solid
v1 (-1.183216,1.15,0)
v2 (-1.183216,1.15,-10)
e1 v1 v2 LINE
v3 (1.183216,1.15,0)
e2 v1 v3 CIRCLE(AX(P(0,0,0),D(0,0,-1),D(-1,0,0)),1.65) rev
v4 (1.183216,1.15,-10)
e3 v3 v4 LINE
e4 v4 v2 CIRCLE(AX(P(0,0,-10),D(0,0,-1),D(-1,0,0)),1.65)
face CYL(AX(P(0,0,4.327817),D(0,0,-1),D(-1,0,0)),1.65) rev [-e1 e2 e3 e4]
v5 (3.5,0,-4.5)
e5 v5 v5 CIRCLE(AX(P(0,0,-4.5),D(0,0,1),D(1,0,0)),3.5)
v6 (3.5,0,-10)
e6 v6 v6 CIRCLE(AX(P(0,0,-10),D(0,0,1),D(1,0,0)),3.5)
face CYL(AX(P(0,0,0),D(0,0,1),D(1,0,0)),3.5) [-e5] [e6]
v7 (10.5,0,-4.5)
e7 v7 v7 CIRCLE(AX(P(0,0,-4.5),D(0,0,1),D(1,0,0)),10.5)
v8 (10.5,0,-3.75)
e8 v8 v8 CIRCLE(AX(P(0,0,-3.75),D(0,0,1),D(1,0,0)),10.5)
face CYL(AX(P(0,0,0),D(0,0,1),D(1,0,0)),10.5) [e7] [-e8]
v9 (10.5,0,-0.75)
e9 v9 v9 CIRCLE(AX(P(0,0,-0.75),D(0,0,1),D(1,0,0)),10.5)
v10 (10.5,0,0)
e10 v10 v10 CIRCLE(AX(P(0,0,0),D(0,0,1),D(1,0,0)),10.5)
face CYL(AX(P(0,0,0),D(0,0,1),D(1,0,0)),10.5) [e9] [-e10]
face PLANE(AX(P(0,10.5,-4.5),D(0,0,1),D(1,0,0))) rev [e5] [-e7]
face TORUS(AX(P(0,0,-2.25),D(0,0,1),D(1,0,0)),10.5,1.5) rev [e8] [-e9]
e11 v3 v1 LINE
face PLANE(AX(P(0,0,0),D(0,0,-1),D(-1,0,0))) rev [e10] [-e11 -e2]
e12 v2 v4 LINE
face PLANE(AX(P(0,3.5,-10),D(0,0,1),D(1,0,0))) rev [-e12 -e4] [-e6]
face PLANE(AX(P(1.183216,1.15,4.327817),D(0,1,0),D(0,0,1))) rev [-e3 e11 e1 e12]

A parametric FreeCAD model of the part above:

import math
import FreeCAD as App
import Part
import Sketcher

doc = App.newDocument("Part")
params = doc.addObject("Spreadsheet::Sheet", "Params")
for row, (alias, value) in enumerate([
    ("sketch1_radius", "1.5 mm"),
    ("sketch1_width", "7 mm"),
    ("sketch1_height", "10 mm"),
    ("sketch1_width2", "10.5 mm"),
    ("sketch1_height2", "5.5 mm"),
    ("revolution_angle", "360 deg"),
    ("sketch2_radius", "1.6 mm"),
    ("sketch3_radius", "1.65 mm"),
    ("pocket2_length", "10 mm"),
], start=1):
    params.set(f"A{row}", alias)
    params.set(f"B{row}", "=" + value)
    params.setAlias(f"B{row}", alias)

body = doc.addObject("PartDesign::Body", "Body")

sketch1 = body.newObject("Sketcher::SketchObject", "Sketch")
sketch1.AttachmentSupport = (doc.getObject("YZ_Plane"), [""])
sketch1.MapMode = "FlatFace"
sketch1.addGeometry([
    Part.LineSegment(App.Vector(10.5, 0, 0), App.Vector(0, 0, 0)),
    Part.LineSegment(App.Vector(0, 0, 0), App.Vector(0, -10, 0)),
    Part.LineSegment(App.Vector(0, -10, 0), App.Vector(3.5, -10, 0)),
    Part.LineSegment(App.Vector(3.5, -10, 0), App.Vector(3.5, -4.5, 0)),
    Part.LineSegment(App.Vector(3.5, -4.5, 0), App.Vector(10.5, -4.5, 0)),
    Part.LineSegment(App.Vector(10.5, -4.5, 0), App.Vector(10.5, -3.8, 0)),
    Part.ArcOfCircle(Part.Circle(App.Vector(10.5, -2.2, 0), App.Vector(0, 0, 1), 1.5), math.radians(90), math.radians(270)),
    Part.LineSegment(App.Vector(10.5, -0.8, 0), App.Vector(10.5, 0, 0)),
], False)
sketch1.addConstraint([
    Sketcher.Constraint("Coincident", 0, 2, 1, 1),
    Sketcher.Constraint("Coincident", 1, 2, 2, 1),
    Sketcher.Constraint("Coincident", 2, 2, 3, 1),
    Sketcher.Constraint("Coincident", 3, 2, 4, 1),
    Sketcher.Constraint("Coincident", 4, 2, 5, 1),
    Sketcher.Constraint("Coincident", 5, 2, 6, 2),
    Sketcher.Constraint("Coincident", 6, 1, 7, 1),
    Sketcher.Constraint("Coincident", 7, 2, 0, 1),
    Sketcher.Constraint("Horizontal", 0),
    Sketcher.Constraint("Vertical", 1),
    Sketcher.Constraint("Horizontal", 2),
    Sketcher.Constraint("Vertical", 3),
    Sketcher.Constraint("Horizontal", 4),
    Sketcher.Constraint("Vertical", 5),
    Sketcher.Constraint("Vertical", 7),
    Sketcher.Constraint("Coincident", 0, 2, -1, 1),
    Sketcher.Constraint("Vertical", 6, 3, 4, 2),
    Sketcher.Constraint("Vertical", 5, 2, 6, 1),
    Sketcher.Constraint("Equal", 5, 7),
    Sketcher.Constraint("Radius", 6, 1.5),
    Sketcher.Constraint("DistanceX", 4, 1, 4, 2, 7.0),
    Sketcher.Constraint("DistanceY", 1, 2, 1, 1, 10.0),
    Sketcher.Constraint("DistanceX", 0, 2, 0, 1, 10.5),
    Sketcher.Constraint("DistanceY", 3, 1, 3, 2, 5.5),
])
sketch1.setExpression("Constraints[19]", "Params.sketch1_radius")
sketch1.setExpression("Constraints[20]", "Params.sketch1_width")
sketch1.setExpression("Constraints[21]", "Params.sketch1_height")
sketch1.setExpression("Constraints[22]", "Params.sketch1_width2")
sketch1.setExpression("Constraints[23]", "Params.sketch1_height2")
revolution = body.newObject("PartDesign::Revolution", "Revolution")
revolution.Profile = sketch1
revolution.ReferenceAxis = (sketch1, ["V_Axis"])
revolution.setExpression("Angle", "Params.revolution_angle")

sketch2 = body.newObject("Sketcher::SketchObject", "Sketch001")
sketch2.AttachmentSupport = (doc.getObject("XY_Plane"), [""])
sketch2.MapMode = "FlatFace"
sketch2.AttachmentOffset = App.Placement(App.Vector(0, 0, -10), App.Rotation())
sketch2.addGeometry([
    Part.LineSegment(App.Vector(-1.2, 1.1, 0), App.Vector(1.2, 1.1, 0)),
    Part.ArcOfCircle(Part.Circle(App.Vector(0, 0, 0), App.Vector(0, 0, 1), 1.6), math.radians(137), math.radians(403)),
], False)
sketch2.addConstraint([
    Sketcher.Constraint("Coincident", 0, 1, 1, 1),
    Sketcher.Constraint("Coincident", 1, 2, 0, 2),
    Sketcher.Constraint("Horizontal", 0),
    Sketcher.Constraint("Coincident", 1, 3, -1, 1),
    Sketcher.Constraint("Radius", 1, 1.6),
    Sketcher.Constraint("DistanceY", -1, 1, 0, 1, 1.1),
])
sketch2.setExpression("Constraints[4]", "Params.sketch2_radius")
pocket1 = body.newObject("PartDesign::Pocket", "Pocket")
pocket1.Profile = sketch2
pocket1.Type = "ThroughAll"
pocket1.Reversed = True

sketch3 = body.newObject("Sketcher::SketchObject", "Sketch002")
sketch3.AttachmentSupport = (doc.getObject("XY_Plane"), [""])
sketch3.MapMode = "FlatFace"
sketch3.AttachmentOffset = App.Placement(App.Vector(0, 0, -10), App.Rotation())
sketch3.addGeometry([
    Part.LineSegment(App.Vector(-1.2, 1.1, 0), App.Vector(1.2, 1.1, 0)),
    Part.ArcOfCircle(Part.Circle(App.Vector(0, 0, 0), App.Vector(0, 0, 1), 1.6), math.radians(136), math.radians(404)),
], False)
sketch3.addConstraint([
    Sketcher.Constraint("Coincident", 0, 1, 1, 1),
    Sketcher.Constraint("Coincident", 1, 2, 0, 2),
    Sketcher.Constraint("Horizontal", 0),
    Sketcher.Constraint("Coincident", 1, 3, -1, 1),
    Sketcher.Constraint("Radius", 1, 1.65),
    Sketcher.Constraint("DistanceY", -1, 1, 0, 1, 1.15),
])
sketch3.setExpression("Constraints[4]", "Params.sketch3_radius")
pocket2 = body.newObject("PartDesign::Pocket", "Pocket001")
pocket2.Profile = sketch3
pocket2.setExpression("Length", "Params.pocket2_length")
pocket2.Reversed = True

doc.recompute()
